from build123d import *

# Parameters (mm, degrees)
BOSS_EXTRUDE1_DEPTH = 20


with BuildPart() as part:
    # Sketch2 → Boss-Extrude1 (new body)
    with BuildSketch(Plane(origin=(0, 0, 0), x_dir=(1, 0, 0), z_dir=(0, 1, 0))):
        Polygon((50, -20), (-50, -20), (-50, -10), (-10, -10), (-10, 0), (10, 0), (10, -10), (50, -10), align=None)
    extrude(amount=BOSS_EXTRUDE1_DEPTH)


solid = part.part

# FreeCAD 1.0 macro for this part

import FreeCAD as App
import Part
import Sketcher


def add_polygon(sketch, points):
    """Adds a closed chain of lines whose ends are joined by coincident constraints."""
    first, n = sketch.GeometryCount, len(points)
    for a, b in zip(points, points[1:] + points[:1]):
        sketch.addGeometry(Part.LineSegment(App.Vector(*a, 0), App.Vector(*b, 0)), False)
    for i in range(n):
        sketch.addConstraint(Sketcher.Constraint("Coincident", first + i, 2, first + (i + 1) % n, 1))

doc = App.newDocument("Part")
params = doc.addObject("Spreadsheet::Sheet", "Params")
for row, (alias, value) in enumerate([
    ("sketch1_width", "100 mm"),
    ("sketch1_width2", "40 mm"),
    ("sketch1_height", "10 mm"),
    ("pad1_length", "20 mm"),
], start=1):
    params.set(f"A{row}", alias)
    params.set(f"B{row}", "=" + value)
    params.setAlias(f"B{row}", alias)

body = doc.addObject("PartDesign::Body", "Body")

# Sketch on XZ plane
sketch1 = body.newObject("Sketcher::SketchObject", "Sketch")
sketch1.AttachmentSupport = (doc.getObject("XZ_Plane"), [""])
sketch1.MapMode = "FlatFace"
add_polygon(sketch1, [(-50, 20), (50, 20), (50, 10), (10, 10), (10, 0), (-10, 0), (-10, 10), (-50, 10)])  # lines 0-7
sketch1.addConstraint([
    Sketcher.Constraint("Horizontal", 0),
    Sketcher.Constraint("Vertical", 1),
    Sketcher.Constraint("Horizontal", 2),
    Sketcher.Constraint("Vertical", 3),
    Sketcher.Constraint("Horizontal", 4),
    Sketcher.Constraint("Vertical", 5),
    Sketcher.Constraint("Horizontal", 6),
    Sketcher.Constraint("Vertical", 7),
    Sketcher.Constraint("Symmetric", 3, 2, 4, 2, -1, 1),
    Sketcher.Constraint("Symmetric", 1, 2, 6, 2, -2),
    Sketcher.Constraint("Equal", 1, 3),
    Sketcher.Constraint("DistanceX", 0, 1, 0, 2, 100.0),
    Sketcher.Constraint("DistanceX", 2, 2, 2, 1, 40.0),
    Sketcher.Constraint("DistanceY", 1, 2, 1, 1, 10.0),
])
sketch1.setExpression("Constraints[19]", "Params.sketch1_width")
sketch1.setExpression("Constraints[20]", "Params.sketch1_width2")
sketch1.setExpression("Constraints[21]", "Params.sketch1_height")
pad1 = body.newObject("PartDesign::Pad", "Pad")
pad1.Profile = sketch1
pad1.setExpression("Length", "Params.pad1_length")
pad1.Reversed = True

doc.recompute()
